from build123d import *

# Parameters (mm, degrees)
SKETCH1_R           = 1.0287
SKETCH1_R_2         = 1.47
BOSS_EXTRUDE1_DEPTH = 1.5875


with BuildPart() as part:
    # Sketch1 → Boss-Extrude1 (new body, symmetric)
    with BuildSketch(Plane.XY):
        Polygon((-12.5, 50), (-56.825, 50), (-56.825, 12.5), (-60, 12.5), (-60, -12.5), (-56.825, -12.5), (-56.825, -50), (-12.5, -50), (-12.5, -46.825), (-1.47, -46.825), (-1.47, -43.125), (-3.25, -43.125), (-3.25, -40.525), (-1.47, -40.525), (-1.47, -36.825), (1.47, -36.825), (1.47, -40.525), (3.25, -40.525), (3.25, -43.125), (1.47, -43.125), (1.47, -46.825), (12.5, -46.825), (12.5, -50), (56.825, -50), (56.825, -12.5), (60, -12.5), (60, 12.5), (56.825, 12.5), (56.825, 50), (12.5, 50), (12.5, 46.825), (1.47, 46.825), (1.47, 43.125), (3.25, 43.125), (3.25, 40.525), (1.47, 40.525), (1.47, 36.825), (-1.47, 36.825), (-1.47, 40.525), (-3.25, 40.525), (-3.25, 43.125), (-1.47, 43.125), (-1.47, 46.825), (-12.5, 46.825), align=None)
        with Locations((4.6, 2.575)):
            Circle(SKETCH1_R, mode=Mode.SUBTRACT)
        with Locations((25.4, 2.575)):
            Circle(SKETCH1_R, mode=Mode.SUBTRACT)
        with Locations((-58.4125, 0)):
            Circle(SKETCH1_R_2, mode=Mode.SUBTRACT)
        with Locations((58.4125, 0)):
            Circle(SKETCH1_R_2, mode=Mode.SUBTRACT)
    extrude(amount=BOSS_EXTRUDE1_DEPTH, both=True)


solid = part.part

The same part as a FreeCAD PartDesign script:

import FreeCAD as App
import Part
import Sketcher

V = App.Vector
Q = App.Units.Quantity

doc = App.newDocument("Part")
body = doc.addObject("PartDesign::Body", "Body")

sketch1 = body.newObject("Sketcher::SketchObject", "Sketch")
sketch1.AttachmentSupport = (doc.getObject("XY_Plane"), [""])
sketch1.MapMode = "FlatFace"
sketch1.addGeometry(Part.LineSegment(V(-12.5, 50, 0), V(-56.8, 50, 0)), False)
sketch1.addGeometry(Part.LineSegment(V(-56.8, 50, 0), V(-56.8, 12.5, 0)), False)
sketch1.addGeometry(Part.LineSegment(V(-56.8, 12.5, 0), V(-60, 12.5, 0)), False)
sketch1.addGeometry(Part.LineSegment(V(-60, 12.5, 0), V(-60, -12.5, 0)), False)
sketch1.addGeometry(Part.LineSegment(V(-60, -12.5, 0), V(-56.8, -12.5, 0)), False)
sketch1.addGeometry(Part.LineSegment(V(-56.8, -12.5, 0), V(-56.8, -50, 0)), False)
sketch1.addGeometry(Part.LineSegment(V(-56.8, -50, 0), V(-12.5, -50, 0)), False)
sketch1.addGeometry(Part.LineSegment(V(-12.5, -50, 0), V(-12.5, -46.8, 0)), False)
sketch1.addGeometry(Part.LineSegment(V(-12.5, -46.8, 0), V(-1.5, -46.8, 0)), False)
sketch1.addGeometry(Part.LineSegment(V(-1.5, -46.8, 0), V(-1.5, -43.1, 0)), False)
sketch1.addGeometry(Part.LineSegment(V(-1.5, -43.1, 0), V(-3.2, -43.1, 0)), False)
sketch1.addGeometry(Part.LineSegment(V(-3.2, -43.1, 0), V(-3.2, -40.5, 0)), False)
sketch1.addGeometry(Part.LineSegment(V(-3.2, -40.5, 0), V(-1.5, -40.5, 0)), False)
sketch1.addGeometry(Part.LineSegment(V(-1.5, -40.5, 0), V(-1.5, -36.8, 0)), False)
sketch1.addGeometry(Part.LineSegment(V(-1.5, -36.8, 0), V(1.5, -36.8, 0)), False)
sketch1.addGeometry(Part.LineSegment(V(1.5, -36.8, 0), V(1.5, -40.5, 0)), False)
sketch1.addGeometry(Part.LineSegment(V(1.5, -40.5, 0), V(3.2, -40.5, 0)), False)
sketch1.addGeometry(Part.LineSegment(V(3.2, -40.5, 0), V(3.2, -43.1, 0)), False)
sketch1.addGeometry(Part.LineSegment(V(3.2, -43.1, 0), V(1.5, -43.1, 0)), False)
sketch1.addGeometry(Part.LineSegment(V(1.5, -43.1, 0), V(1.5, -46.8, 0)), False)
sketch1.addGeometry(Part.LineSegment(V(1.5, -46.8, 0), V(12.5, -46.8, 0)), False)
sketch1.addGeometry(Part.LineSegment(V(12.5, -46.8, 0), V(12.5, -50, 0)), False)
sketch1.addGeometry(Part.LineSegment(V(12.5, -50, 0), V(56.8, -50, 0)), False)
sketch1.addGeometry(Part.LineSegment(V(56.8, -50, 0), V(56.8, -12.5, 0)), False)
sketch1.addGeometry(Part.LineSegment(V(56.8, -12.5, 0), V(60, -12.5, 0)), False)
sketch1.addGeometry(Part.LineSegment(V(60, -12.5, 0), V(60, 12.5, 0)), False)
sketch1.addGeometry(Part.LineSegment(V(60, 12.5, 0), V(56.8, 12.5, 0)), False)
sketch1.addGeometry(Part.LineSegment(V(56.8, 12.5, 0), V(56.8, 50, 0)), False)
sketch1.addGeometry(Part.LineSegment(V(56.8, 50, 0), V(12.5, 50, 0)), False)
sketch1.addGeometry(Part.LineSegment(V(12.5, 50, 0), V(12.5, 46.8, 0)), False)
sketch1.addGeometry(Part.LineSegment(V(12.5, 46.8, 0), V(1.5, 46.8, 0)), False)
sketch1.addGeometry(Part.LineSegment(V(1.5, 46.8, 0), V(1.5, 43.1, 0)), False)
sketch1.addGeometry(Part.LineSegment(V(1.5, 43.1, 0), V(3.2, 43.1, 0)), False)
sketch1.addGeometry(Part.LineSegment(V(3.2, 43.1, 0), V(3.2, 40.5, 0)), False)
sketch1.addGeometry(Part.LineSegment(V(3.2, 40.5, 0), V(1.5, 40.5, 0)), False)
sketch1.addGeometry(Part.LineSegment(V(1.5, 40.5, 0), V(1.5, 36.8, 0)), False)
sketch1.addGeometry(Part.LineSegment(V(1.5, 36.8, 0), V(-1.5, 36.8, 0)), False)
sketch1.addGeometry(Part.LineSegment(V(-1.5, 36.8, 0), V(-1.5, 40.5, 0)), False)
sketch1.addGeometry(Part.LineSegment(V(-1.5, 40.5, 0), V(-3.2, 40.5, 0)), False)
sketch1.addGeometry(Part.LineSegment(V(-3.2, 40.5, 0), V(-3.2, 43.1, 0)), False)
sketch1.addGeometry(Part.LineSegment(V(-3.2, 43.1, 0), V(-1.5, 43.1, 0)), False)
sketch1.addGeometry(Part.LineSegment(V(-1.5, 43.1, 0), V(-1.5, 46.8, 0)), False)
sketch1.addGeometry(Part.LineSegment(V(-1.5, 46.8, 0), V(-12.5, 46.8, 0)), False)
sketch1.addGeometry(Part.LineSegment(V(-12.5, 46.8, 0), V(-12.5, 50, 0)), False)
sketch1.addGeometry(Part.Circle(V(-58.4, 0, 0), V(0, 0, 1), 1.5), False)
sketch1.addGeometry(Part.Circle(V(58.4, 0, 0), V(0, 0, 1), 1.5), False)
sketch1.addGeometry(Part.Circle(V(4.6, 2.6, 0), V(0, 0, 1), 1), False)
sketch1.addGeometry(Part.Circle(V(25.4, 2.6, 0), V(0, 0, 1), 1), False)
sketch1.addConstraint(Sketcher.Constraint("Coincident", 0, 2, 1, 1))
sketch1.addConstraint(Sketcher.Constraint("Coincident", 1, 2, 2, 1))
sketch1.addConstraint(Sketcher.Constraint("Coincident", 2, 2, 3, 1))
sketch1.addConstraint(Sketcher.Constraint("Coincident", 3, 2, 4, 1))
sketch1.addConstraint(Sketcher.Constraint("Coincident", 4, 2, 5, 1))
sketch1.addConstraint(Sketcher.Constraint("Coincident", 5, 2, 6, 1))
sketch1.addConstraint(Sketcher.Constraint("Coincident", 6, 2, 7, 1))
sketch1.addConstraint(Sketcher.Constraint("Coincident", 7, 2, 8, 1))
sketch1.addConstraint(Sketcher.Constraint("Coincident", 8, 2, 9, 1))
sketch1.addConstraint(Sketcher.Constraint("Coincident", 9, 2, 10, 1))
sketch1.addConstraint(Sketcher.Constraint("Coincident", 10, 2, 11, 1))
sketch1.addConstraint(Sketcher.Constraint("Coincident", 11, 2, 12, 1))
sketch1.addConstraint(Sketcher.Constraint("Coincident", 12, 2, 13, 1))
sketch1.addConstraint(Sketcher.Constraint("Coincident", 13, 2, 14, 1))
sketch1.addConstraint(Sketcher.Constraint("Coincident", 14, 2, 15, 1))
sketch1.addConstraint(Sketcher.Constraint("Coincident", 15, 2, 16, 1))
sketch1.addConstraint(Sketcher.Constraint("Coincident", 16, 2, 17, 1))
sketch1.addConstraint(Sketcher.Constraint("Coincident", 17, 2, 18, 1))
sketch1.addConstraint(Sketcher.Constraint("Coincident", 18, 2, 19, 1))
sketch1.addConstraint(Sketcher.Constraint("Coincident", 19, 2, 20, 1))
sketch1.addConstraint(Sketcher.Constraint("Coincident", 20, 2, 21, 1))
sketch1.addConstraint(Sketcher.Constraint("Coincident", 21, 2, 22, 1))
sketch1.addConstraint(Sketcher.Constraint("Coincident", 22, 2, 23, 1))
sketch1.addConstraint(Sketcher.Constraint("Coincident", 23, 2, 24, 1))
sketch1.addConstraint(Sketcher.Constraint("Coincident", 24, 2, 25, 1))
sketch1.addConstraint(Sketcher.Constraint("Coincident", 25, 2, 26, 1))
sketch1.addConstraint(Sketcher.Constraint("Coincident", 26, 2, 27, 1))
sketch1.addConstraint(Sketcher.Constraint("Coincident", 27, 2, 28, 1))
sketch1.addConstraint(Sketcher.Constraint("Coincident", 28, 2, 29, 1))
sketch1.addConstraint(Sketcher.Constraint("Coincident", 29, 2, 30, 1))
sketch1.addConstraint(Sketcher.Constraint("Coincident", 30, 2, 31, 1))
sketch1.addConstraint(Sketcher.Constraint("Coincident", 31, 2, 32, 1))
sketch1.addConstraint(Sketcher.Constraint("Coincident", 32, 2, 33, 1))
sketch1.addConstraint(Sketcher.Constraint("Coincident", 33, 2, 34, 1))
sketch1.addConstraint(Sketcher.Constraint("Coincident", 34, 2, 35, 1))
sketch1.addConstraint(Sketcher.Constraint("Coincident", 35, 2, 36, 1))
sketch1.addConstraint(Sketcher.Constraint("Coincident", 36, 2, 37, 1))
sketch1.addConstraint(Sketcher.Constraint("Coincident", 37, 2, 38, 1))
sketch1.addConstraint(Sketcher.Constraint("Coincident", 38, 2, 39, 1))
sketch1.addConstraint(Sketcher.Constraint("Coincident", 39, 2, 40, 1))
sketch1.addConstraint(Sketcher.Constraint("Coincident", 40, 2, 41, 1))
sketch1.addConstraint(Sketcher.Constraint("Coincident", 41, 2, 42, 1))
sketch1.addConstraint(Sketcher.Constraint("Coincident", 42, 2, 43, 1))
sketch1.addConstraint(Sketcher.Constraint("Coincident", 43, 2, 0, 1))
sketch1.addConstraint(Sketcher.Constraint("Horizontal", 0))
sketch1.addConstraint(Sketcher.Constraint("Vertical", 1))
sketch1.addConstraint(Sketcher.Constraint("Horizontal", 2))
sketch1.addConstraint(Sketcher.Constraint("Vertical", 3))
sketch1.addConstraint(Sketcher.Constraint("Horizontal", 4))
sketch1.addConstraint(Sketcher.Constraint("Vertical", 5))
sketch1.addConstraint(Sketcher.Constraint("Horizontal", 6))
sketch1.addConstraint(Sketcher.Constraint("Vertical", 7))
sketch1.addConstraint(Sketcher.Constraint("Horizontal", 8))
sketch1.addConstraint(Sketcher.Constraint("Vertical", 9))
sketch1.addConstraint(Sketcher.Constraint("Horizontal", 10))
sketch1.addConstraint(Sketcher.Constraint("Vertical", 11))
sketch1.addConstraint(Sketcher.Constraint("Horizontal", 12))
sketch1.addConstraint(Sketcher.Constraint("Vertical", 13))
sketch1.addConstraint(Sketcher.Constraint("Horizontal", 14))
sketch1.addConstraint(Sketcher.Constraint("Vertical", 15))
sketch1.addConstraint(Sketcher.Constraint("Horizontal", 16))
sketch1.addConstraint(Sketcher.Constraint("Vertical", 17))
sketch1.addConstraint(Sketcher.Constraint("Horizontal", 18))
sketch1.addConstraint(Sketcher.Constraint("Vertical", 19))
sketch1.addConstraint(Sketcher.Constraint("Horizontal", 20))
sketch1.addConstraint(Sketcher.Constraint("Vertical", 21))
sketch1.addConstraint(Sketcher.Constraint("Horizontal", 22))
sketch1.addConstraint(Sketcher.Constraint("Vertical", 23))
sketch1.addConstraint(Sketcher.Constraint("Horizontal", 24))
sketch1.addConstraint(Sketcher.Constraint("Vertical", 25))
sketch1.addConstraint(Sketcher.Constraint("Horizontal", 26))
sketch1.addConstraint(Sketcher.Constraint("Vertical", 27))
sketch1.addConstraint(Sketcher.Constraint("Horizontal", 28))
sketch1.addConstraint(Sketcher.Constraint("Vertical", 29))
sketch1.addConstraint(Sketcher.Constraint("Horizontal", 30))
sketch1.addConstraint(Sketcher.Constraint("Vertical", 31))
sketch1.addConstraint(Sketcher.Constraint("Horizontal", 32))
sketch1.addConstraint(Sketcher.Constraint("Vertical", 33))
sketch1.addConstraint(Sketcher.Constraint("Horizontal", 34))
sketch1.addConstraint(Sketcher.Constraint("Vertical", 35))
sketch1.addConstraint(Sketcher.Constraint("Horizontal", 36))
sketch1.addConstraint(Sketcher.Constraint("Vertical", 37))
sketch1.addConstraint(Sketcher.Constraint("Horizontal", 38))
sketch1.addConstraint(Sketcher.Constraint("Vertical", 39))
sketch1.addConstraint(Sketcher.Constraint("Horizontal", 40))
sketch1.addConstraint(Sketcher.Constraint("Vertical", 41))
sketch1.addConstraint(Sketcher.Constraint("Horizontal", 42))
sketch1.addConstraint(Sketcher.Constraint("Vertical", 43))
sketch1.addConstraint(Sketcher.Constraint("Equal", 44, 45))
sketch1.addConstraint(Sketcher.Constraint("Equal", 46, 47))
sketch1.addConstraint(Sketcher.Constraint("Symmetric", 44, 3, 45, 3, -1, 1))
sketch1.addConstraint(Sketcher.Constraint("Symmetric", 0, 2, 22, 2, -1, 1))
sketch1.addConstraint(Sketcher.Constraint("Symmetric", 2, 2, 24, 2, -1, 1))
sketch1.addConstraint(Sketcher.Constraint("Symmetric", 4, 2, 26, 2, -1, 1))
sketch1.addConstraint(Sketcher.Constraint("Symmetric", 6, 2, 28, 2, -1, 1))
sketch1.addConstraint(Sketcher.Constraint("Symmetric", 8, 2, 30, 2, -1, 1))
sketch1.addConstraint(Sketcher.Constraint("Symmetric", 10, 2, 32, 2, -1, 1))
sketch1.addConstraint(Sketcher.Constraint("Symmetric", 12, 2, 34, 2, -1, 1))
sketch1.addConstraint(Sketcher.Constraint("Symmetric", 14, 2, 36, 2, -1, 1))
sketch1.addConstraint(Sketcher.Constraint("Symmetric", 16, 2, 38, 2, -1, 1))
sketch1.addConstraint(Sketcher.Constraint("Symmetric", 18, 2, 40, 2, -1, 1))
sketch1.addConstraint(Sketcher.Constraint("Symmetric", 20, 2, 42, 2, -1, 1))
sketch1.addConstraint(Sketcher.Constraint("Symmetric", 12, 2, 15, 2, -2))
sketch1.addConstraint(Sketcher.Constraint("Symmetric", 10, 2, 17, 2, -2))
sketch1.addConstraint(Sketcher.Constraint("Symmetric", 8, 2, 19, 2, -2))
sketch1.addConstraint(Sketcher.Constraint("Symmetric", 6, 2, 21, 2, -2))
sketch1.addConstraint(Sketcher.Constraint("Symmetric", 4, 2, 23, 2, -2))
sketch1.addConstraint(Sketcher.Constraint("PointOnObject", 44, 3, -1))
sketch1.addConstraint(Sketcher.Constraint("Horizontal", 46, 3, 47, 3))
sketch1.addConstraint(Sketcher.Constraint("Vertical", 9, 2, 12, 2))
sketch1.addConstraint(Sketcher.Constraint("Equal", 26, 7))
sketch1.addConstraint(Sketcher.Constraint("Equal", 9, 13))
sketch1.addConstraint(Sketcher.Constraint("Diameter", 44, Q("2.94 mm")))
sketch1.addConstraint(Sketcher.Constraint("DistanceY", 3, 2, 3, 1, Q("25 mm")))
sketch1.addConstraint(Sketcher.Constraint("DistanceY", 1, 2, 1, 1, Q("37.5 mm")))
sketch1.addConstraint(Sketcher.Constraint("DistanceY", 9, 1, 9, 2, Q("3.7 mm")))
sketch1.addConstraint(Sketcher.Constraint("DistanceY", 11, 1, 11, 2, Q("2.6 mm")))
sketch1.addConstraint(Sketcher.Constraint("DistanceX", 2, 2, -1, 1, Q("60 mm")))
sketch1.addConstraint(Sketcher.Constraint("Diameter", 46, Q("2.0574 mm")))
sketch1.addConstraint(Sketcher.Constraint("DistanceX", 8, 1, 8, 2, Q("11.03 mm")))
sketch1.addConstraint(Sketcher.Constraint("DistanceX", 10, 2, 10, 1, Q("1.78 mm")))
sketch1.addConstraint(Sketcher.Constraint("DistanceX", 14, 1, 14, 2, Q("2.94 mm")))
sketch1.addConstraint(Sketcher.Constraint("DistanceX", -1, 1, 46, 3, Q("4.6 mm")))
sketch1.addConstraint(Sketcher.Constraint("DistanceX", -1, 1, 47, 3, Q("25.4 mm")))
sketch1.addConstraint(Sketcher.Constraint("DistanceY", 7, 2, 46, 3, Q("49.4 mm")))
sketch1.addConstraint(Sketcher.Constraint("DistanceX", 0, 2, 0, 1, Q("44.325 mm")))
sketch1.addConstraint(Sketcher.Constraint("DistanceX", 44, 3, 45, 3, Q("116.825 mm")))
pad1 = body.newObject("PartDesign::Pad", "Pad")
pad1.Profile = sketch1
pad1.Length = 3.175
pad1.Midplane = True

doc.recompute()
